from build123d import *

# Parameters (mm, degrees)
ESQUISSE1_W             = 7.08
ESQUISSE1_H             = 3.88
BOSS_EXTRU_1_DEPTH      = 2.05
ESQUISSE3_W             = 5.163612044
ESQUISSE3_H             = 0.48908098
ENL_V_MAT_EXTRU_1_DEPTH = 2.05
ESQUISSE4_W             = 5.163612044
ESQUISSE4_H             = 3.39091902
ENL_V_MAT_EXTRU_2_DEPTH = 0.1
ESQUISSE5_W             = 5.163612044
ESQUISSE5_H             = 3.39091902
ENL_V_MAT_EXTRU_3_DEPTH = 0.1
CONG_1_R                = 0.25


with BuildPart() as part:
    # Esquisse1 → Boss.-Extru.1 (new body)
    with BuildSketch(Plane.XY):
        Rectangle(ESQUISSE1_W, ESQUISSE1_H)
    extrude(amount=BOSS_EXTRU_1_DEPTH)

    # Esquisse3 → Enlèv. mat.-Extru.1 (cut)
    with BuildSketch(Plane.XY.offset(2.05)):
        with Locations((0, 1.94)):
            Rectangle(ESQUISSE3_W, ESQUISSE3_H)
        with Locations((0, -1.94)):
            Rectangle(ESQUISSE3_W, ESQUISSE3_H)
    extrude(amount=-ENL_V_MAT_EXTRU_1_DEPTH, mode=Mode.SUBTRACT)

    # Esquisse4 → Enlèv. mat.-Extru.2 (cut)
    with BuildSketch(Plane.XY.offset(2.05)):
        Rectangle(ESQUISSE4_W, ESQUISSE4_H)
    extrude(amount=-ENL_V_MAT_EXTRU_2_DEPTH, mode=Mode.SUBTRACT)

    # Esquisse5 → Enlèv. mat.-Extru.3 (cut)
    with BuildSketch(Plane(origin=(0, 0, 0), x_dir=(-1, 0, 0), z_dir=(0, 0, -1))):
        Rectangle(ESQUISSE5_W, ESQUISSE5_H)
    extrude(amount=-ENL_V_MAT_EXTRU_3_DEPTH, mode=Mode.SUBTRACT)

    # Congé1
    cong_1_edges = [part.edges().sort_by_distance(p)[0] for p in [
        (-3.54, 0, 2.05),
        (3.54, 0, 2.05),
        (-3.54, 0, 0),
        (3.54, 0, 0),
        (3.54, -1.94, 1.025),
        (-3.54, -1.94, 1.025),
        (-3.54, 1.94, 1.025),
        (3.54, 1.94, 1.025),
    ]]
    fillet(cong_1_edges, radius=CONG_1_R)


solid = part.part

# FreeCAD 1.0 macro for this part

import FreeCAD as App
import Part
import Sketcher
from FreeCAD import Vector
Q = App.Units.Quantity


def edges_at(feature, points):
    """Names of the edges that pass closest to the given points."""
    edges = feature.Shape.Edges
    near = lambda p: min(range(len(edges)), key=lambda i: edges[i].distToShape(Part.Vertex(*p))[0])
    return sorted({f"Edge{near(p) + 1}" for p in points})


def add_polygon(sketch, points):
    """Adds a closed chain of lines whose ends are joined by coincident constraints."""
    first, n = sketch.GeometryCount, len(points)
    for a, b in zip(points, points[1:] + points[:1]):
        sketch.addGeometry(Part.LineSegment(App.Vector(*a, 0), App.Vector(*b, 0)), False)
    for i in range(n):
        sketch.addConstraint(Sketcher.Constraint("Coincident", first + i, 2, first + (i + 1) % n, 1))

doc = App.newDocument("Part")
body = doc.addObject("PartDesign::Body", "Body")

# Sketch on XY plane
sketch1 = body.newObject("Sketcher::SketchObject", "Sketch")
sketch1.AttachmentSupport = (doc.getObject("XY_Plane"), [""])
sketch1.MapMode = "FlatFace"
add_polygon(sketch1, [(-3.5, 1.9), (-3.5, -1.9), (3.5, -1.9), (3.5, 1.9)])  # lines 0-3
sketch1.addConstraint(Sketcher.Constraint("Vertical", 0))
sketch1.addConstraint(Sketcher.Constraint("Horizontal", 1))
sketch1.addConstraint(Sketcher.Constraint("Vertical", 2))
sketch1.addConstraint(Sketcher.Constraint("Horizontal", 3))
sketch1.addConstraint(Sketcher.Constraint("Symmetric", 0, 2, 2, 2, -1, 1))
sketch1.addConstraint(Sketcher.Constraint("DistanceX", 1, 1, 1, 2, Q("7.08 mm")))
sketch1.addConstraint(Sketcher.Constraint("DistanceY", 0, 2, 0, 1, Q("3.88 mm")))
pad1 = body.newObject("PartDesign::Pad", "Pad")
pad1.Profile = sketch1
pad1.Length = 2.05

# Sketch on XY plane
sketch2 = body.newObject("Sketcher::SketchObject", "Sketch001")
sketch2.AttachmentSupport = (doc.getObject("XY_Plane"), [""])
sketch2.MapMode = "FlatFace"
sketch2.AttachmentOffset = App.Placement(Vector(0, 0, 2.05), App.Rotation())
add_polygon(sketch2, [(-2.58, 2.18), (-2.58, 1.7), (2.58, 1.7), (2.58, 2.18)])  # lines 0-3
add_polygon(sketch2, [(-2.58, -1.7), (-2.58, -2.18), (2.58, -2.18), (2.58, -1.7)])  # lines 4-7
sketch2.addConstraint(Sketcher.Constraint("Vertical", 0))
sketch2.addConstraint(Sketcher.Constraint("Horizontal", 1))
sketch2.addConstraint(Sketcher.Constraint("Vertical", 2))
sketch2.addConstraint(Sketcher.Constraint("Horizontal", 3))
sketch2.addConstraint(Sketcher.Constraint("Vertical", 4))
sketch2.addConstraint(Sketcher.Constraint("Horizontal", 5))
sketch2.addConstraint(Sketcher.Constraint("Vertical", 6))
sketch2.addConstraint(Sketcher.Constraint("Horizontal", 7))
sketch2.addConstraint(Sketcher.Constraint("Symmetric", 2, 2, 4, 2, -1, 1))
sketch2.addConstraint(Sketcher.Constraint("Symmetric", 0, 2, 6, 2, -1, 1))
sketch2.addConstraint(Sketcher.Constraint("Vertical", 3, 2, 4, 2))
sketch2.addConstraint(Sketcher.Constraint("DistanceY", 4, 2, 0, 2, Q("3.88 mm")))
sketch2.addConstraint(Sketcher.Constraint("DistanceY", 0, 2, 0, 1, Q("0.489081 mm")))
sketch2.addConstraint(Sketcher.Constraint("DistanceX", 1, 1, 1, 2, Q("5.163612 mm")))
pocket1 = body.newObject("PartDesign::Pocket", "Pocket")
pocket1.Profile = sketch2
pocket1.Length = 2.05

# Sketch on XY plane
sketch3 = body.newObject("Sketcher::SketchObject", "Sketch002")
sketch3.AttachmentSupport = (doc.getObject("XY_Plane"), [""])
sketch3.MapMode = "FlatFace"
sketch3.AttachmentOffset = App.Placement(Vector(0, 0, 2.05), App.Rotation())
add_polygon(sketch3, [(-2.6, 1.7), (-2.6, -1.7), (2.6, -1.7), (2.6, 1.7)])  # lines 0-3
sketch3.addConstraint(Sketcher.Constraint("Vertical", 0))
sketch3.addConstraint(Sketcher.Constraint("Horizontal", 1))
sketch3.addConstraint(Sketcher.Constraint("Vertical", 2))
sketch3.addConstraint(Sketcher.Constraint("Horizontal", 3))
sketch3.addConstraint(Sketcher.Constraint("Symmetric", 0, 2, 2, 2, -1, 1))
sketch3.addConstraint(Sketcher.Constraint("DistanceY", 0, 2, 0, 1, Q("3.390919 mm")))
sketch3.addConstraint(Sketcher.Constraint("DistanceX", 1, 1, 1, 2, Q("5.163612 mm")))
pocket2 = body.newObject("PartDesign::Pocket", "Pocket001")
pocket2.Profile = sketch3
pocket2.Length = 0.1

# Sketch on XY plane
sketch4 = body.newObject("Sketcher::SketchObject", "Sketch003")
sketch4.AttachmentSupport = (doc.getObject("XY_Plane"), [""])
sketch4.MapMode = "FlatFace"
add_polygon(sketch4, [(2.6, 1.7), (2.6, -1.7), (-2.6, -1.7), (-2.6, 1.7)])  # lines 0-3
sketch4.addConstraint(Sketcher.Constraint("Vertical", 0))
sketch4.addConstraint(Sketcher.Constraint("Horizontal", 1))
sketch4.addConstraint(Sketcher.Constraint("Vertical", 2))
sketch4.addConstraint(Sketcher.Constraint("Horizontal", 3))
sketch4.addConstraint(Sketcher.Constraint("Symmetric", 0, 2, 2, 2, -1, 1))
sketch4.addConstraint(Sketcher.Constraint("DistanceY", 0, 2, 0, 1, Q("3.390919 mm")))
sketch4.addConstraint(Sketcher.Constraint("DistanceX", 1, 2, 1, 1, Q("5.163612 mm")))
pocket3 = body.newObject("PartDesign::Pocket", "Pocket002")
pocket3.Profile = sketch4
pocket3.Length = 0.1
pocket3.Reversed = True
doc.recompute()

fillet = body.newObject("PartDesign::Fillet", "Fillet")
fillet.Base = (pocket3, edges_at(pocket3, [
    (-3.54, 0, 2.05),
    (3.54, 0, 2.05),
    (-3.54, 0, 0),
    (3.54, 0, 0),
    (3.54, -1.94, 1.025),
    (-3.54, -1.94, 1.025),
    (-3.54, 1.94, 1.025),
    (3.54, 1.94, 1.025),
]))
fillet.Radius = 0.25

doc.recompute()
